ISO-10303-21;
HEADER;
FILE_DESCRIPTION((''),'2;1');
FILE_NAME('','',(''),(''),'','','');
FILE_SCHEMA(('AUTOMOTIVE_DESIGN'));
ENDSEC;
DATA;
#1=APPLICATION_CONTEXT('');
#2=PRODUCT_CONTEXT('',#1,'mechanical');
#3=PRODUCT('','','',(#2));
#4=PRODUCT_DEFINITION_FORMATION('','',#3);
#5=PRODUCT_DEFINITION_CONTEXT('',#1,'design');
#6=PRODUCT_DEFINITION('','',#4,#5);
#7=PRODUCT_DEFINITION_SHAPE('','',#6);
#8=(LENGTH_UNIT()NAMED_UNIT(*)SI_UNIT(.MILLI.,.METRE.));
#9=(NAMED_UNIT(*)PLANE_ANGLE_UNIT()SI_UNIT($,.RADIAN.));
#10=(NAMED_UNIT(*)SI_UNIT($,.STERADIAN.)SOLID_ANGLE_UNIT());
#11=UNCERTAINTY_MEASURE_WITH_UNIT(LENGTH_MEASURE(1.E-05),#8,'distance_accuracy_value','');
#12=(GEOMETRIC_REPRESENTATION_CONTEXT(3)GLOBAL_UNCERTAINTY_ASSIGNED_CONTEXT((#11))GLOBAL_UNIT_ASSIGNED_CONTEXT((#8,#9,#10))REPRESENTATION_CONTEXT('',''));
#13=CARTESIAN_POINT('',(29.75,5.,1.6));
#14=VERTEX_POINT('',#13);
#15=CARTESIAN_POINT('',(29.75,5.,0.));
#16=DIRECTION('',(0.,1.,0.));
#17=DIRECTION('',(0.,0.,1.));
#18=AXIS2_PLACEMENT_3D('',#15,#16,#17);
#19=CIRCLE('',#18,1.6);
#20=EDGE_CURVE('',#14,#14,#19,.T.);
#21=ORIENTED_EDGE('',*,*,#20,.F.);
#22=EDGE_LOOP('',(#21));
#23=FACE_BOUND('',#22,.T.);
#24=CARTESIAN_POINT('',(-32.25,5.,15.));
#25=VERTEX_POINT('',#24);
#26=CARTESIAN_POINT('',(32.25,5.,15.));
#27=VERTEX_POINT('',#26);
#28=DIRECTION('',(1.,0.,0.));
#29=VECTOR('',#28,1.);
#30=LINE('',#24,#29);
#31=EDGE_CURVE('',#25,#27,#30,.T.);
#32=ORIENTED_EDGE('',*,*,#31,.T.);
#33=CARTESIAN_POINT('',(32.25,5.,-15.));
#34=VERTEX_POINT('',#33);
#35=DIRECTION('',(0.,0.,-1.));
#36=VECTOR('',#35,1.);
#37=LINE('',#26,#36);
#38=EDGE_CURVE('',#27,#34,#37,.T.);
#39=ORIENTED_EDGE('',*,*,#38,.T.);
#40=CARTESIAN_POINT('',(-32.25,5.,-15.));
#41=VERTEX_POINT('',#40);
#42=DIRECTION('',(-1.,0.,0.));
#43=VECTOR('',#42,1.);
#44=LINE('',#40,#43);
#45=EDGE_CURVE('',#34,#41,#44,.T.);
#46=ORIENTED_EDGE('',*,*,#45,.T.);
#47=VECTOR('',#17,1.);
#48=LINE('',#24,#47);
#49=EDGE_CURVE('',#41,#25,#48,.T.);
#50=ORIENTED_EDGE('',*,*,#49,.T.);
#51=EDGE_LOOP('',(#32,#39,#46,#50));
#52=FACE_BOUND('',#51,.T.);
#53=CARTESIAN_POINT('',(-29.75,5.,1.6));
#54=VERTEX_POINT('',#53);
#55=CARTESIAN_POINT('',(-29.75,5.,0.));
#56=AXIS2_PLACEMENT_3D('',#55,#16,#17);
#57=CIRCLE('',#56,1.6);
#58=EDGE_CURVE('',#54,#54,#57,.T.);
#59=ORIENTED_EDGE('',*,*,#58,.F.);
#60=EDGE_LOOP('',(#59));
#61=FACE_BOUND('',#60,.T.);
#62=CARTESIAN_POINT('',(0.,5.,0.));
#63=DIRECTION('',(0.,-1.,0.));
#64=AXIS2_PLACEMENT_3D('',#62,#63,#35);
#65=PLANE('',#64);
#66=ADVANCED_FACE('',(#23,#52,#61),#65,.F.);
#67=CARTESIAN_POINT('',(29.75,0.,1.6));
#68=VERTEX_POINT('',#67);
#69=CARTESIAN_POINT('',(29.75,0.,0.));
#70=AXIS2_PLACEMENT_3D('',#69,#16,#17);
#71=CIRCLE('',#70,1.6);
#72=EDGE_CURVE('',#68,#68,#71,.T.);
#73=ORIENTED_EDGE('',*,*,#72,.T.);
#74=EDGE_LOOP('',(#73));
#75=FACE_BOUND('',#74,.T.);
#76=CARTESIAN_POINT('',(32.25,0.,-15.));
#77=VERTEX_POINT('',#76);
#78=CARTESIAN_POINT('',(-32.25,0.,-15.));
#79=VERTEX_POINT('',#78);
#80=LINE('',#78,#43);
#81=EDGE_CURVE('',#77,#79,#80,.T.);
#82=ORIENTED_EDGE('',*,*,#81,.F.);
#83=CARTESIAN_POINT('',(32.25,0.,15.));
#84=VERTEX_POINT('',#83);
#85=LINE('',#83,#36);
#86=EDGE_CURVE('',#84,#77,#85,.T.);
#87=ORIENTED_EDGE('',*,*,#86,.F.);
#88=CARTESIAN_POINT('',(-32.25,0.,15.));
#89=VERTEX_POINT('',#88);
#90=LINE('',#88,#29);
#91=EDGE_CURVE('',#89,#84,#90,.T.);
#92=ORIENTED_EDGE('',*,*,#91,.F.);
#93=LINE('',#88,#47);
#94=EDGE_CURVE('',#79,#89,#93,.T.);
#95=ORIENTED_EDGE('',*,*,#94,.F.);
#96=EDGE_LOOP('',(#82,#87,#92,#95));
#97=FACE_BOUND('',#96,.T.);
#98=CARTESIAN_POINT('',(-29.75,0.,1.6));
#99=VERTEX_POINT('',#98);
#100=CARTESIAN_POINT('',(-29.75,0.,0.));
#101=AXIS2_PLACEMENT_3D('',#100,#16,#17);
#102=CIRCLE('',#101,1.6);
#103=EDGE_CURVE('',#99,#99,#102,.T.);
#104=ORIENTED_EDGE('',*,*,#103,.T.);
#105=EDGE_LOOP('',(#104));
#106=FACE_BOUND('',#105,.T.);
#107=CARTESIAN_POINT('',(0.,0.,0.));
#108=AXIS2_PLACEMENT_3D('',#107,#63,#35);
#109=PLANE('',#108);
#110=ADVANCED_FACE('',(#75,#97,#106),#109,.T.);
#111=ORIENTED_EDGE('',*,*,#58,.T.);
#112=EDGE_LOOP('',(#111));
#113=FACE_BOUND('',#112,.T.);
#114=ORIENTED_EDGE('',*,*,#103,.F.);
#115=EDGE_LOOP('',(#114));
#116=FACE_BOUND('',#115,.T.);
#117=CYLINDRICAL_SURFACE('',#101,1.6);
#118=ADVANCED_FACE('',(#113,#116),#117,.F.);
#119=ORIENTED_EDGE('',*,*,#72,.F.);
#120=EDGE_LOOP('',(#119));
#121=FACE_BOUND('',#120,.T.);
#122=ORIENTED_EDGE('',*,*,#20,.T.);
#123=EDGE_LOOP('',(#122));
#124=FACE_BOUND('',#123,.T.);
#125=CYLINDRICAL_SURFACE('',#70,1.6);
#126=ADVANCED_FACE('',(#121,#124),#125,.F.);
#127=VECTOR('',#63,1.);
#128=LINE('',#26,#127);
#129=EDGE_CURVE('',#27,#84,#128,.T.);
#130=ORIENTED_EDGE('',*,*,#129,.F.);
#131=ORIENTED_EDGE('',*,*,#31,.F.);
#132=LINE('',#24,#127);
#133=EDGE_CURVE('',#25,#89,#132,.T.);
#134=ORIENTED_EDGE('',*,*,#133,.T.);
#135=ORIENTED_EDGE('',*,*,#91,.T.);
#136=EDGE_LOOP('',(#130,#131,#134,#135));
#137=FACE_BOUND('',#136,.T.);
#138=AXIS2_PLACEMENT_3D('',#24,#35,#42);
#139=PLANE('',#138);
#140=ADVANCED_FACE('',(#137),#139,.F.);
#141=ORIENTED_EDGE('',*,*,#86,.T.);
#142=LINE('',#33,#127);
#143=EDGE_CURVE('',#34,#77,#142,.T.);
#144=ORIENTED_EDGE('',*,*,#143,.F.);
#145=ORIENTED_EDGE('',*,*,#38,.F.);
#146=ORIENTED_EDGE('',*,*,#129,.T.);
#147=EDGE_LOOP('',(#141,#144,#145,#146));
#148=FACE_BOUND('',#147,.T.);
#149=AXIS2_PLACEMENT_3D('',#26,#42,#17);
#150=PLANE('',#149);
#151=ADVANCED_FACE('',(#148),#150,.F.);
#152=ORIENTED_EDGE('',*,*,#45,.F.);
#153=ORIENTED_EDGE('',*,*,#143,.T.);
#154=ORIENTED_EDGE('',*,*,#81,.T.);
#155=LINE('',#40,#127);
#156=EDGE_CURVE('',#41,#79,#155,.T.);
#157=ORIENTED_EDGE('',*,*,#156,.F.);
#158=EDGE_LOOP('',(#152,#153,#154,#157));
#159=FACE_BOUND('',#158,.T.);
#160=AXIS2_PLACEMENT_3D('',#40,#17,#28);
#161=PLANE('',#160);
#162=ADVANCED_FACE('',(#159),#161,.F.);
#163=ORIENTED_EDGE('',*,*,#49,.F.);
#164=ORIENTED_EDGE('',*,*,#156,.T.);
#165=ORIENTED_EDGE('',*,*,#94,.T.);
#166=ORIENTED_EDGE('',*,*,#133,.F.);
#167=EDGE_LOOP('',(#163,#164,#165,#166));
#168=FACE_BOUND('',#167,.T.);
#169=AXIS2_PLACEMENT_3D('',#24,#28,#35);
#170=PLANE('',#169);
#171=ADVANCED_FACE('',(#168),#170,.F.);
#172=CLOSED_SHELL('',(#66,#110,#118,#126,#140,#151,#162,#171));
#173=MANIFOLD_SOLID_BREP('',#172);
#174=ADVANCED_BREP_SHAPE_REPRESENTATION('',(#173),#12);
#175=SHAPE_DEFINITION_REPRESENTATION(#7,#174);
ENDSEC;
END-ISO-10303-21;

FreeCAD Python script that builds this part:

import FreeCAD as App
import Part
import Sketcher


def add_polygon(sketch, points):
    """Adds a closed chain of lines whose ends are joined by coincident constraints."""
    first, n = sketch.GeometryCount, len(points)
    for a, b in zip(points, points[1:] + points[:1]):
        sketch.addGeometry(Part.LineSegment(App.Vector(*a, 0), App.Vector(*b, 0)), False)
    for i in range(n):
        sketch.addConstraint(Sketcher.Constraint("Coincident", first + i, 2, first + (i + 1) % n, 1))

doc = App.newDocument("Part")
body = doc.addObject("PartDesign::Body", "Body")

# Sketch on XZ plane
sketch1 = body.newObject("Sketcher::SketchObject", "Sketch")
sketch1.AttachmentSupport = (doc.getObject("XZ_Plane"), [""])
sketch1.MapMode = "FlatFace"
add_polygon(sketch1, [(-32.25, -15), (-32.25, 15), (32.25, 15), (32.25, -15)])  # lines 0-3
sketch1.addConstraint([
    Sketcher.Constraint("Vertical", 0),
    Sketcher.Constraint("Horizontal", 1),
    Sketcher.Constraint("Vertical", 2),
    Sketcher.Constraint("Horizontal", 3),
    Sketcher.Constraint("Symmetric", 0, 2, 2, 2, -1, 1),
    Sketcher.Constraint("DistanceY", 0, 1, 0, 2, 30.0),
    Sketcher.Constraint("DistanceX", 1, 1, 1, 2, 64.5),
])
pad1 = body.newObject("PartDesign::Pad", "Pad")
pad1.Profile = sketch1
pad1.Length = 5
pad1.Reversed = True

# Sketch on XZ plane
sketch2 = body.newObject("Sketcher::SketchObject", "Sketch001")
sketch2.AttachmentSupport = (doc.getObject("XZ_Plane"), [""])
sketch2.MapMode = "FlatFace"
sketch2.AttachmentOffset = App.Placement(App.Vector(0, 0, -5), App.Rotation())
sketch2.addGeometry([
    Part.Circle(App.Vector(-29.75, 0, 0), App.Vector(0, 0, 1), 1.6),
    Part.Circle(App.Vector(29.75, 0, 0), App.Vector(0, 0, 1), 1.6),
], False)
sketch2.addConstraint([
    Sketcher.Constraint("Equal", 0, 1),
    Sketcher.Constraint("Symmetric", 0, 3, 1, 3, -1, 1),
    Sketcher.Constraint("PointOnObject", 0, 3, -1),
    Sketcher.Constraint("Diameter", 0, 3.2),
    Sketcher.Constraint("DistanceX", 0, 3, 1, 3, 59.5),
])
pocket1 = body.newObject("PartDesign::Pocket", "Pocket")
pocket1.Profile = sketch2
pocket1.Type = "ThroughAll"
pocket1.Reversed = True

doc.recompute()
